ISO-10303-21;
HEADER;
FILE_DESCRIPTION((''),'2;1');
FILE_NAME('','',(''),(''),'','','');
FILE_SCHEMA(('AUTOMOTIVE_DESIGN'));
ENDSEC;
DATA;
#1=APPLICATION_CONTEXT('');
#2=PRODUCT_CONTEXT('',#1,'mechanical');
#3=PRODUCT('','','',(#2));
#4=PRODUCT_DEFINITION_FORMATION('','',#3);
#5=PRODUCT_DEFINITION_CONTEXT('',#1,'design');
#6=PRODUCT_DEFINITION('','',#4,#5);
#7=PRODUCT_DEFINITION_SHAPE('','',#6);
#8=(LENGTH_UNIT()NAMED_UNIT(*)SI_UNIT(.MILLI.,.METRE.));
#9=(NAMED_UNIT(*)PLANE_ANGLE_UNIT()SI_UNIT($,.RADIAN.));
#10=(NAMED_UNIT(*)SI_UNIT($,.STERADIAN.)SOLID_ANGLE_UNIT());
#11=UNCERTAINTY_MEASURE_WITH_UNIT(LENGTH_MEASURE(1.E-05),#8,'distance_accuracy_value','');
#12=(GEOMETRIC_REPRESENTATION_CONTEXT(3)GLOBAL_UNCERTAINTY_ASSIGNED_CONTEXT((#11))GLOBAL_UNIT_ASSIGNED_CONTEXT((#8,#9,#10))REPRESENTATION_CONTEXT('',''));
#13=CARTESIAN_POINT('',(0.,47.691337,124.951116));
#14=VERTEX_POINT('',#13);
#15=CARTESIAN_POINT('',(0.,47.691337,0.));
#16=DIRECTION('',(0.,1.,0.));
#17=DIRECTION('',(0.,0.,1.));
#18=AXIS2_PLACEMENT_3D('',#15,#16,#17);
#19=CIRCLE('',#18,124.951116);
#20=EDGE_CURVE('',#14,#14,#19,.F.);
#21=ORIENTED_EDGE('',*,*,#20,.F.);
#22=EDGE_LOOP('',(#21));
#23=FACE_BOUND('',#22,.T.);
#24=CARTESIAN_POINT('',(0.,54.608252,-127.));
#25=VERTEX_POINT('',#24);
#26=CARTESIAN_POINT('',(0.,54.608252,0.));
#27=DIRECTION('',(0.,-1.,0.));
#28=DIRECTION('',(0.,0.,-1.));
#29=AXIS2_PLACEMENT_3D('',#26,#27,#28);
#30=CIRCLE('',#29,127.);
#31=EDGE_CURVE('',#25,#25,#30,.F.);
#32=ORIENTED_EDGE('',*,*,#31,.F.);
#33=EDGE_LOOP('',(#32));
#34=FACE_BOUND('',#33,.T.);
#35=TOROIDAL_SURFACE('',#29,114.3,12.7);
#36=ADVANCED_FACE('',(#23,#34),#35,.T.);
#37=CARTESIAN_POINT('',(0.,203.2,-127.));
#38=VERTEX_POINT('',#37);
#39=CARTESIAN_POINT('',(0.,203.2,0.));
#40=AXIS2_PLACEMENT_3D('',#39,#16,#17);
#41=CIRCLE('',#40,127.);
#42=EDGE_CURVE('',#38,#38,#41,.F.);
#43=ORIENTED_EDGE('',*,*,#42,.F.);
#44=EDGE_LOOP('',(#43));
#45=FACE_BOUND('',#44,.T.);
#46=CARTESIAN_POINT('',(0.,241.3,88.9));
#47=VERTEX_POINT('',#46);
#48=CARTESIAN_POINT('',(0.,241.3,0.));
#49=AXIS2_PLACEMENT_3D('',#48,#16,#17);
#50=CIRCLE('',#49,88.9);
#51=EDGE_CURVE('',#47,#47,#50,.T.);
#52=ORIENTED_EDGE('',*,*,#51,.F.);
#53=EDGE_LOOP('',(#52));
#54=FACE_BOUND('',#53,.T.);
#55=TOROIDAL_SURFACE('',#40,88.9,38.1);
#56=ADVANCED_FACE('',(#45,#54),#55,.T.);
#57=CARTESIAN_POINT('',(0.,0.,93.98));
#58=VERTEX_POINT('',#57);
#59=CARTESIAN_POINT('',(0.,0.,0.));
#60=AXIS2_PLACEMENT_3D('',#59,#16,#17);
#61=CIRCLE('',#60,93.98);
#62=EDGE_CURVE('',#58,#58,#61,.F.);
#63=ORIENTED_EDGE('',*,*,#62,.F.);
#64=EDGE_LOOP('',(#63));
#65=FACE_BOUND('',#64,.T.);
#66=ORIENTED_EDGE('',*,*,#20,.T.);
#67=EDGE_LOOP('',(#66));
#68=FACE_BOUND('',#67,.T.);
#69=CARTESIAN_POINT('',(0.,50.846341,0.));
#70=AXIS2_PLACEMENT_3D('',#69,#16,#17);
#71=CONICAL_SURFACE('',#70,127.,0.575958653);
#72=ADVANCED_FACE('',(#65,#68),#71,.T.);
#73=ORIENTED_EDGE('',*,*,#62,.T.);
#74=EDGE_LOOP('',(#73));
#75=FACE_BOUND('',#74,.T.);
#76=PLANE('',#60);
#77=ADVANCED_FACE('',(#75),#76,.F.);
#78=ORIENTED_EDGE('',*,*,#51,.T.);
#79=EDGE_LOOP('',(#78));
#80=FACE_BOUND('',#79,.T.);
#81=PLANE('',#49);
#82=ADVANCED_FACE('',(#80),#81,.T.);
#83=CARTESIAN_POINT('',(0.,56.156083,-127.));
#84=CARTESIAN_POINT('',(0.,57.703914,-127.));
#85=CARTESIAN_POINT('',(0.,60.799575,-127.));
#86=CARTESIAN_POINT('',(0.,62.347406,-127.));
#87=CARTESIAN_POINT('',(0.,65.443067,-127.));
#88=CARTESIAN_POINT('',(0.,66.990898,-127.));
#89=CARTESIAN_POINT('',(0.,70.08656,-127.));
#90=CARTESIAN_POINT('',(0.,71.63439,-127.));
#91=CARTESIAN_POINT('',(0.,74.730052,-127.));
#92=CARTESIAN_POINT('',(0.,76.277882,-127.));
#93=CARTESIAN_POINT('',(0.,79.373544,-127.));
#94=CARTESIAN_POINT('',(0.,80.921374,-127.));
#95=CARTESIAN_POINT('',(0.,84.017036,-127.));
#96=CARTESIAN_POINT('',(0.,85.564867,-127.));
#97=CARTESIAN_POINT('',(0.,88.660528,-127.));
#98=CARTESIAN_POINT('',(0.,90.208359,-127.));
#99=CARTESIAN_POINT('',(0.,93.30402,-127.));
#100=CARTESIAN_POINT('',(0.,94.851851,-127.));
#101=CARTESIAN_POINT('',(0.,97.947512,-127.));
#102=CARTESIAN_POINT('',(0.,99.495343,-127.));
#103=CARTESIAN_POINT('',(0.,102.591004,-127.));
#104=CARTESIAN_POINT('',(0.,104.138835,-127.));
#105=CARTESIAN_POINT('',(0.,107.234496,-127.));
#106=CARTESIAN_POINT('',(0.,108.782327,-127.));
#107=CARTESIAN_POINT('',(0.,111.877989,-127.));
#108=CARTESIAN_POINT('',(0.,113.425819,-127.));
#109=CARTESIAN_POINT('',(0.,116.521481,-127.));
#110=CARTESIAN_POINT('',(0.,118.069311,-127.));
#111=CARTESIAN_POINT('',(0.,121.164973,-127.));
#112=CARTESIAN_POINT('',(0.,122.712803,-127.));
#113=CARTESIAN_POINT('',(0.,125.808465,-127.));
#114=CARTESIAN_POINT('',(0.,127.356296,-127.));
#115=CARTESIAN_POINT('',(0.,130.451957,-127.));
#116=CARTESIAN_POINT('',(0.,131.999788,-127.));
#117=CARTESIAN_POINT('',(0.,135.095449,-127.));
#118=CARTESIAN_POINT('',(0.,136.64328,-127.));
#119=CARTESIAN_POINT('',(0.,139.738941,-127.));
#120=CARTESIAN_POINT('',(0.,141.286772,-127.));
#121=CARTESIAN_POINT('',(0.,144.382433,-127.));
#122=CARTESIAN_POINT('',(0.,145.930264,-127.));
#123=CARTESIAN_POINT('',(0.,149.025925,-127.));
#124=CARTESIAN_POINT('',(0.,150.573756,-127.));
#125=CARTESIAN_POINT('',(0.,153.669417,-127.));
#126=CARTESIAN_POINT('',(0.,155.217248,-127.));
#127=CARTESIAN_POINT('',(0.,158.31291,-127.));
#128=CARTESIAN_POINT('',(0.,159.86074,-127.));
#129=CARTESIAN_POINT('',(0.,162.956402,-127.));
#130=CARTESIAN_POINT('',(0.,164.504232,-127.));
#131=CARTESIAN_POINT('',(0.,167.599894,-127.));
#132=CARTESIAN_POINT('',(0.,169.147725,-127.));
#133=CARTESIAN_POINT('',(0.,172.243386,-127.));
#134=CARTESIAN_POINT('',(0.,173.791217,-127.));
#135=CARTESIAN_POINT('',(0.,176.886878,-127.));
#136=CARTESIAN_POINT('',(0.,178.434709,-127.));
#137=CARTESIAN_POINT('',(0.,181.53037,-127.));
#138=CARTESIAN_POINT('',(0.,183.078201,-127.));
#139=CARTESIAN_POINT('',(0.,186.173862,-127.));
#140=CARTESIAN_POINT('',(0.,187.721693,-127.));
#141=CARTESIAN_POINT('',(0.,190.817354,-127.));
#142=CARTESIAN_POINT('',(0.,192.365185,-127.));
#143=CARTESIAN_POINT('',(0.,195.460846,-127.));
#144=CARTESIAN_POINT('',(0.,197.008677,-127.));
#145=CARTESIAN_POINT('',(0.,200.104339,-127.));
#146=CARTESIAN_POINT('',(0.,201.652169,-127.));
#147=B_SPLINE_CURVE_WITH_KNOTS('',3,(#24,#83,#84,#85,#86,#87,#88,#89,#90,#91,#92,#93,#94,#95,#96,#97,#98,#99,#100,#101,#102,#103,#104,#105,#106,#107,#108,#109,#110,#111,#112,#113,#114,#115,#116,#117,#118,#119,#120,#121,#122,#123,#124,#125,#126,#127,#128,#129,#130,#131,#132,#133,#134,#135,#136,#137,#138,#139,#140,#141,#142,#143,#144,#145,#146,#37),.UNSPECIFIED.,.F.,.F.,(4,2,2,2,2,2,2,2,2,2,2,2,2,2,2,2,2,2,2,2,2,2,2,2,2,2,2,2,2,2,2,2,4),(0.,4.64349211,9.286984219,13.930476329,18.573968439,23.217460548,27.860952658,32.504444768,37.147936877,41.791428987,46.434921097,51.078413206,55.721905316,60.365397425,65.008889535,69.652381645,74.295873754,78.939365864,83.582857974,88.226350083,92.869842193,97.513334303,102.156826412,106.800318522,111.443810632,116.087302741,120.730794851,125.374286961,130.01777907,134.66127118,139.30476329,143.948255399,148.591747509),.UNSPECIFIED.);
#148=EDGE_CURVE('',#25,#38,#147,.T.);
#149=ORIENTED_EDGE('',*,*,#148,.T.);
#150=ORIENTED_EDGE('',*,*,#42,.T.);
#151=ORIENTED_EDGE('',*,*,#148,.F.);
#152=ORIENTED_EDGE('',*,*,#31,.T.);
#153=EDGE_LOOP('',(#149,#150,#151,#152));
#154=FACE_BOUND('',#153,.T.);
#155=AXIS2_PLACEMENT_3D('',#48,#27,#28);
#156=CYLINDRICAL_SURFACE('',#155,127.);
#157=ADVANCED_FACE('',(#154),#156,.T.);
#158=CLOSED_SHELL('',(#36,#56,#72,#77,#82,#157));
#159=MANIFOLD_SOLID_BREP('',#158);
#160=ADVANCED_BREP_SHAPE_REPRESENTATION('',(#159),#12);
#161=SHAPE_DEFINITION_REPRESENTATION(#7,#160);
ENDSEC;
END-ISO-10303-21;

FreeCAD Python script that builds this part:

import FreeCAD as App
import Part
import Sketcher

V = App.Vector
Q = App.Units.Quantity


def edges_at(feature, points):
    """Names of the edges that pass closest to the given points."""
    edges = feature.Shape.Edges
    near = lambda p: min(range(len(edges)), key=lambda i: edges[i].distToShape(Part.Vertex(*p))[0])
    return sorted({f"Edge{near(p) + 1}" for p in points})

doc = App.newDocument("Part")
body = doc.addObject("PartDesign::Body", "Body")

sketch1 = body.newObject("Sketcher::SketchObject", "Sketch")
sketch1.AttachmentSupport = (doc.getObject("XZ_Plane"), [""])
sketch1.MapMode = "FlatFace"
sketch1.addGeometry(Part.Circle(V(0, 0, 0), V(0, 0, 1), 127), False)
sketch1.addConstraint(Sketcher.Constraint("Coincident", 0, 3, -1, 1))
sketch1.addConstraint(Sketcher.Constraint("Diameter", 0, Q("10 in")))
pad1 = body.newObject("PartDesign::Pad", "Pad")
pad1.Profile = sketch1
pad1.Length = Q("9.5 in")
pad1.Reversed = True
doc.recompute()

fillet = body.newObject("PartDesign::Fillet", "Fillet")
fillet.Base = (pad1, edges_at(pad1, [(0, 241.3, 127)]))
fillet.Radius = Q("1.5 in")
doc.recompute()

chamfer = body.newObject("PartDesign::Chamfer", "Chamfer")
chamfer.Base = (fillet, edges_at(fillet, [(0, 0, 127)]))
chamfer.ChamferType = "Two distances"
chamfer.Size = Q("1.3 in")
chamfer.Size2 = 50.846341
chamfer.FlipDirection = True
doc.recompute()

fillet2 = body.newObject("PartDesign::Fillet", "Fillet001")
fillet2.Base = (chamfer, edges_at(chamfer, [(0, 50.846, 127)]))
fillet2.Radius = Q("0.5 in")

doc.recompute()
